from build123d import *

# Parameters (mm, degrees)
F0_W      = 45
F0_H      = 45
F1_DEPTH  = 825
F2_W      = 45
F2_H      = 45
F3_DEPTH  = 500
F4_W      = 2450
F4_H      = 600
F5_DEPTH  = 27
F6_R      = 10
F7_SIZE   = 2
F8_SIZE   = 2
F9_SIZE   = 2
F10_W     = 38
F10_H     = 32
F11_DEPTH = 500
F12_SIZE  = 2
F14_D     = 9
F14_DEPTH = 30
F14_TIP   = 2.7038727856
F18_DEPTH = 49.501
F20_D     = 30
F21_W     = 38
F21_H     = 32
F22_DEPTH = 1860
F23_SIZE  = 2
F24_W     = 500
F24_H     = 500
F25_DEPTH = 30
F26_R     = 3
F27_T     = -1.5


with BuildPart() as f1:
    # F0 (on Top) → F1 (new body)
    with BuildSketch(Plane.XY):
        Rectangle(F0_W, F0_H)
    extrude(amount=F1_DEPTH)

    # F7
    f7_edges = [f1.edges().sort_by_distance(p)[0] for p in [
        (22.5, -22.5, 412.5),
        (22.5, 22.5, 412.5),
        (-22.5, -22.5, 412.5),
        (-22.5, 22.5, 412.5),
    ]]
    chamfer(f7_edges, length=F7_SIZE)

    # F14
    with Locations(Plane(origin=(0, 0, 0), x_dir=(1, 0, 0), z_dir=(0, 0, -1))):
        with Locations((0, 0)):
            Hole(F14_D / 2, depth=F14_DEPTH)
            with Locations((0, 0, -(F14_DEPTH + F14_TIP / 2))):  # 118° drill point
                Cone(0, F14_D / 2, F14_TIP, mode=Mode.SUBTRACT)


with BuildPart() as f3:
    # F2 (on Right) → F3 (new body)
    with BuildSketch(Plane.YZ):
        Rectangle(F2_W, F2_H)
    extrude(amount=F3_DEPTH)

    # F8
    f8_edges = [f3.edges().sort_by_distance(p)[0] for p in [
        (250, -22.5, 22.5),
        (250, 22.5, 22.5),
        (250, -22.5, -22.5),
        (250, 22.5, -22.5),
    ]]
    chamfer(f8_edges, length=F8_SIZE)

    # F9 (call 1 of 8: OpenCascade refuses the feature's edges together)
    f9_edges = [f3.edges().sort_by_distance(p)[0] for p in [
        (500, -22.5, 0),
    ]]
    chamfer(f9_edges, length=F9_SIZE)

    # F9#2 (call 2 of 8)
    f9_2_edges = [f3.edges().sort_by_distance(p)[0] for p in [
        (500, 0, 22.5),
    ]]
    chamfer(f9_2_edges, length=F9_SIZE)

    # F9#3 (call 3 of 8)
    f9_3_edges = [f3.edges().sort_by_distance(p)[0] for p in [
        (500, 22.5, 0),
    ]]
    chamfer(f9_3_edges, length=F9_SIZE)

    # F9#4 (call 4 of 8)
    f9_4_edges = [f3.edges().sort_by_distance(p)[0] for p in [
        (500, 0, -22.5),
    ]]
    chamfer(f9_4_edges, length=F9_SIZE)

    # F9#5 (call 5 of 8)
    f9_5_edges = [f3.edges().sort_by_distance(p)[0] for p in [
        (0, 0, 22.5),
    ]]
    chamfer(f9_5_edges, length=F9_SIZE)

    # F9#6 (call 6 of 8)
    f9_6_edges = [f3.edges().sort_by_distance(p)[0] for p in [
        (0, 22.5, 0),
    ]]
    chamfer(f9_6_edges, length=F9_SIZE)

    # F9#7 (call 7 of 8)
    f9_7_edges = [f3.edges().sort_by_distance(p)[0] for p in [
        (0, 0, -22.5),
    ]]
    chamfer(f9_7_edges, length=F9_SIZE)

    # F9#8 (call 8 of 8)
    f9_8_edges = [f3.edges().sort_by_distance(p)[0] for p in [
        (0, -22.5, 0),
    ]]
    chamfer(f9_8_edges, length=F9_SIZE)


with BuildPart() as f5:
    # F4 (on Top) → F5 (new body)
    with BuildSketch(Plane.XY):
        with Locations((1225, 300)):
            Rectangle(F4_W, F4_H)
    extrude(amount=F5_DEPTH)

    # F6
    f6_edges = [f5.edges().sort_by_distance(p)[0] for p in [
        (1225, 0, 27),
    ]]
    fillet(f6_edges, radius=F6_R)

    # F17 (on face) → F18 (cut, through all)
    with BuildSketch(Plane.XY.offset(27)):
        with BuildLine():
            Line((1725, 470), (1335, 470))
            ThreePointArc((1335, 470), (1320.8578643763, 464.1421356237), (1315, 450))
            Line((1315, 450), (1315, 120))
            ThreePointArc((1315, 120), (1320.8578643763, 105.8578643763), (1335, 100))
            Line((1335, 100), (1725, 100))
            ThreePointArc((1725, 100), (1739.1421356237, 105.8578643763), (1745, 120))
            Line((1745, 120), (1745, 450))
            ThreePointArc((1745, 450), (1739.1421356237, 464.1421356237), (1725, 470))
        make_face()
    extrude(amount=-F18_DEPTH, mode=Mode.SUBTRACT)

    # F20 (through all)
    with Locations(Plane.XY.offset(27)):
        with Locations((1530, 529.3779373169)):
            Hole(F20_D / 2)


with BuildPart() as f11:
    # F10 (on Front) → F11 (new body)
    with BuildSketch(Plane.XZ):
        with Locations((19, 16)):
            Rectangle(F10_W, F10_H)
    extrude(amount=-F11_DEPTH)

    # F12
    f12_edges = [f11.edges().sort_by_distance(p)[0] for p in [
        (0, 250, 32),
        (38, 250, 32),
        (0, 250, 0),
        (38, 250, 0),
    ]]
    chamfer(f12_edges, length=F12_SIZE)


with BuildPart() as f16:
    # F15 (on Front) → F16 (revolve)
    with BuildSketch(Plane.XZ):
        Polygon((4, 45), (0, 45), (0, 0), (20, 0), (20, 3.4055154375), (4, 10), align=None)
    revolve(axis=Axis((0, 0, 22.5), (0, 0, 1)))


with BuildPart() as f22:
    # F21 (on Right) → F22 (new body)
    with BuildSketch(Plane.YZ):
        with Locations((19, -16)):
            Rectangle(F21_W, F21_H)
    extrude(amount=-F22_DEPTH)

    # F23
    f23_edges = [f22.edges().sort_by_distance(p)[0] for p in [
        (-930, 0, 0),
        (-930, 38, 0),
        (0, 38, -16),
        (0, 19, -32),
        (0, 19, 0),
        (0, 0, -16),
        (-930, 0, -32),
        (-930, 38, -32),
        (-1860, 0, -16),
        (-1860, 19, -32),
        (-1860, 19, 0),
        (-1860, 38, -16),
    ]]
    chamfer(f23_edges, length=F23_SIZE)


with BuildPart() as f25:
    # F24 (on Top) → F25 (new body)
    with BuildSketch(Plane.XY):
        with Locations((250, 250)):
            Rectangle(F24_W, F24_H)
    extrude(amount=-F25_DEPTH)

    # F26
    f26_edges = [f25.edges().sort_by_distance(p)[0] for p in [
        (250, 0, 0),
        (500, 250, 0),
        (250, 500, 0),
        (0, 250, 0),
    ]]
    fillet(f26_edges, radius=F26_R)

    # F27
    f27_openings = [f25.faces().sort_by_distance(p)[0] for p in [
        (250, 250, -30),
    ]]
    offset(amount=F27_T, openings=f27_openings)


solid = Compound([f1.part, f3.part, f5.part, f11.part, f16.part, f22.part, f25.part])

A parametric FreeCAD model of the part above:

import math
import FreeCAD as App
import Part
import Sketcher

V = App.Vector
Q = App.Units.Quantity


def edges_at(feature, points):
    """Names of the edges that pass closest to the given points."""
    edges = feature.Shape.Edges
    near = lambda p: min(range(len(edges)), key=lambda i: edges[i].distToShape(Part.Vertex(*p))[0])
    return sorted({f"Edge{near(p) + 1}" for p in points})


def faces_at(feature, points):
    """Names of the faces that lie closest to the given points."""
    faces = feature.Shape.Faces
    near = lambda p: min(range(len(faces)), key=lambda i: faces[i].distToShape(Part.Vertex(*p))[0])
    return sorted({f"Face{near(p) + 1}" for p in points})


def add_polygon(sketch, points):
    """Adds a closed chain of lines whose ends are joined by coincident constraints."""
    first, n = sketch.GeometryCount, len(points)
    for a, b in zip(points, points[1:] + points[:1]):
        sketch.addGeometry(Part.LineSegment(App.Vector(*a, 0), App.Vector(*b, 0)), False)
    for i in range(n):
        sketch.addConstraint(Sketcher.Constraint("Coincident", first + i, 2, first + (i + 1) % n, 1))

doc = App.newDocument("Part")
params = doc.addObject("Spreadsheet::Sheet", "Params")
for row, (alias, value) in enumerate([
    ("sketch1_width", "45 mm"),
    ("pad1_length", "825 mm"),
    ("chamfer_size", "2 mm"),
    ("sketch2_diameter", "9 mm"),
    ("hole_diameter", "9 mm"),
    ("hole_depth", "30 mm"),
    ("sketch3_width", "45 mm"),
    ("pad2_length", "500 mm"),
    ("chamfer2_size", "2 mm"),
    ("chamfer3_size", "2 mm"),
    ("chamfer4_size", "2 mm"),
    ("chamfer5_size", "2 mm"),
    ("chamfer6_size", "2 mm"),
    ("chamfer7_size", "2 mm"),
    ("chamfer8_size", "2 mm"),
    ("chamfer9_size", "2 mm"),
    ("chamfer10_size", "2 mm"),
    ("sketch4_width", "2450 mm"),
    ("sketch4_height", "600 mm"),
    ("pad3_length", "27 mm"),
    ("fillet_radius", "10 mm"),
    ("sketch5_radius", "20 mm"),
    ("sketch5_width", "390 mm"),
    ("sketch5_height", "330 mm"),
    ("sketch6_diameter", "30 mm"),
    ("hole2_diameter", "30 mm"),
    ("sketch7_width", "38 mm"),
    ("sketch7_height", "32 mm"),
    ("pad4_length", "500 mm"),
    ("chamfer11_size", "2 mm"),
    ("sketch8_width", "4 mm"),
    ("sketch8_width2", "20 mm"),
    ("sketch8_height", "45 mm"),
    ("sketch8_height2", "35 mm"),
    ("revolution_angle", "360 deg"),
    ("sketch9_width", "38 mm"),
    ("sketch9_height", "32 mm"),
    ("pad5_length", "1860 mm"),
    ("chamfer12_size", "2 mm"),
    ("sketch10_width", "500 mm"),
    ("pad6_length", "30 mm"),
    ("fillet2_radius", "3 mm"),
    ("thickness_wall", "1.5 mm"),
], start=1):
    params.set(f"A{row}", alias)
    params.set(f"B{row}", "=" + value)
    params.setAlias(f"B{row}", alias)

body = doc.addObject("PartDesign::Body", "Body")

# Sketch on XY plane
sketch1 = body.newObject("Sketcher::SketchObject", "Sketch")
sketch1.AttachmentSupport = (doc.getObject("XY_Plane"), [""])
sketch1.MapMode = "FlatFace"
add_polygon(sketch1, [(-22, 22), (-22, -22), (22, -22), (22, 22)])  # lines 0-3
sketch1.addConstraint([
    Sketcher.Constraint("Vertical", 0),
    Sketcher.Constraint("Horizontal", 1),
    Sketcher.Constraint("Vertical", 2),
    Sketcher.Constraint("Horizontal", 3),
    Sketcher.Constraint("Symmetric", 0, 2, 2, 2, -1, 1),
    Sketcher.Constraint("Equal", 3, 0),
    Sketcher.Constraint("DistanceX", 1, 1, 1, 2, Q("45 mm")),
])
sketch1.setExpression("Constraints[10]", "Params.sketch1_width")
pad1 = body.newObject("PartDesign::Pad", "Pad")
pad1.Profile = sketch1
pad1.setExpression("Length", "Params.pad1_length")
doc.recompute()

chamfer = body.newObject("PartDesign::Chamfer", "Chamfer")
chamfer.Base = (pad1, edges_at(pad1, [
    (22.5, -22.5, 412.5),
    (22.5, 22.5, 412.5),
    (-22.5, -22.5, 412.5),
    (-22.5, 22.5, 412.5),
]))
chamfer.setExpression("Size", "Params.chamfer_size")

# Sketch on XY plane
sketch2 = body.newObject("Sketcher::SketchObject", "Sketch001")
sketch2.AttachmentSupport = (doc.getObject("XY_Plane"), [""])
sketch2.MapMode = "FlatFace"
sketch2.addGeometry(Part.Circle(V(0, 0, 0), V(0, 0, 1), 4.5), False)
sketch2.addConstraint([
    Sketcher.Constraint("Coincident", 0, 3, -1, 1),
    Sketcher.Constraint("Diameter", 0, Q("9 mm")),
])
sketch2.setExpression("Constraints[1]", "Params.sketch2_diameter")
doc.recompute()
hole = body.newObject("PartDesign::Hole", "Hole")
hole.Profile = sketch2
hole.ThreadType = "None"
hole.setExpression("Diameter", "Params.hole_diameter")
hole.DepthType = "Dimension"
hole.setExpression("Depth", "Params.hole_depth")
hole.DrillPoint = "Angled"
hole.DrillPointAngle = 118
hole.Reversed = True
body2 = doc.addObject("PartDesign::Body", "Body001")

# Sketch on YZ plane
sketch3 = body2.newObject("Sketcher::SketchObject", "Sketch002")
sketch3.AttachmentSupport = (doc.getObject("YZ_Plane001"), [""])
sketch3.MapMode = "FlatFace"
add_polygon(sketch3, [(-22, 22), (-22, -22), (22, -22), (22, 22)])  # lines 0-3
sketch3.addConstraint([
    Sketcher.Constraint("Vertical", 0),
    Sketcher.Constraint("Horizontal", 1),
    Sketcher.Constraint("Vertical", 2),
    Sketcher.Constraint("Horizontal", 3),
    Sketcher.Constraint("Symmetric", 0, 2, 2, 2, -1, 1),
    Sketcher.Constraint("Equal", 3, 0),
    Sketcher.Constraint("DistanceX", 1, 1, 1, 2, Q("45 mm")),
])
sketch3.setExpression("Constraints[10]", "Params.sketch3_width")
pad2 = body2.newObject("PartDesign::Pad", "Pad001")
pad2.Profile = sketch3
pad2.setExpression("Length", "Params.pad2_length")
doc.recompute()

chamfer2 = body2.newObject("PartDesign::Chamfer", "Chamfer001")
chamfer2.Base = (pad2, edges_at(pad2, [
    (250, -22.5, 22.5),
    (250, 22.5, 22.5),
    (250, -22.5, -22.5),
    (250, 22.5, -22.5),
]))
chamfer2.setExpression("Size", "Params.chamfer2_size")
doc.recompute()

chamfer3 = body2.newObject("PartDesign::Chamfer", "Chamfer002")
chamfer3.Base = (chamfer2, edges_at(chamfer2, [(500, -22.5, 0)]))
chamfer3.setExpression("Size", "Params.chamfer3_size")
doc.recompute()

chamfer4 = body2.newObject("PartDesign::Chamfer", "Chamfer003")
chamfer4.Base = (chamfer3, edges_at(chamfer3, [(500, 0, 22.5)]))
chamfer4.setExpression("Size", "Params.chamfer4_size")
doc.recompute()

chamfer5 = body2.newObject("PartDesign::Chamfer", "Chamfer004")
chamfer5.Base = (chamfer4, edges_at(chamfer4, [(500, 22.5, 0)]))
chamfer5.setExpression("Size", "Params.chamfer5_size")
doc.recompute()

chamfer6 = body2.newObject("PartDesign::Chamfer", "Chamfer005")
chamfer6.Base = (chamfer5, edges_at(chamfer5, [(500, 0, -22.5)]))
chamfer6.setExpression("Size", "Params.chamfer6_size")
doc.recompute()

chamfer7 = body2.newObject("PartDesign::Chamfer", "Chamfer006")
chamfer7.Base = (chamfer6, edges_at(chamfer6, [(0, 0, 22.5)]))
chamfer7.setExpression("Size", "Params.chamfer7_size")
doc.recompute()

chamfer8 = body2.newObject("PartDesign::Chamfer", "Chamfer007")
chamfer8.Base = (chamfer7, edges_at(chamfer7, [(0, 22.5, 0)]))
chamfer8.setExpression("Size", "Params.chamfer8_size")
doc.recompute()

chamfer9 = body2.newObject("PartDesign::Chamfer", "Chamfer008")
chamfer9.Base = (chamfer8, edges_at(chamfer8, [(0, 0, -22.5)]))
chamfer9.setExpression("Size", "Params.chamfer9_size")
doc.recompute()

chamfer10 = body2.newObject("PartDesign::Chamfer", "Chamfer009")
chamfer10.Base = (chamfer9, edges_at(chamfer9, [(0, -22.5, 0)]))
chamfer10.setExpression("Size", "Params.chamfer10_size")
body3 = doc.addObject("PartDesign::Body", "Body002")

# Sketch on XY plane
sketch4 = body3.newObject("Sketcher::SketchObject", "Sketch003")
sketch4.AttachmentSupport = (doc.getObject("XY_Plane002"), [""])
sketch4.MapMode = "FlatFace"
add_polygon(sketch4, [(0, 600), (0, 0), (2450, 0), (2450, 600)])  # lines 0-3
sketch4.addConstraint([
    Sketcher.Constraint("Vertical", 0),
    Sketcher.Constraint("Horizontal", 1),
    Sketcher.Constraint("Vertical", 2),
    Sketcher.Constraint("Horizontal", 3),
    Sketcher.Constraint("Coincident", 0, 2, -1, 1),
    Sketcher.Constraint("DistanceX", 1, 1, 1, 2, Q("2450 mm")),
    Sketcher.Constraint("DistanceY", 0, 2, 0, 1, Q("600 mm")),
])
sketch4.setExpression("Constraints[9]", "Params.sketch4_width")
sketch4.setExpression("Constraints[10]", "Params.sketch4_height")
pad3 = body3.newObject("PartDesign::Pad", "Pad002")
pad3.Profile = sketch4
pad3.setExpression("Length", "Params.pad3_length")
doc.recompute()

fillet = body3.newObject("PartDesign::Fillet", "Fillet")
fillet.Base = (pad3, edges_at(pad3, [(1225, 0, 27)]))
fillet.setExpression("Radius", "Params.fillet_radius")

# Sketch on XY plane
sketch5 = body3.newObject("Sketcher::SketchObject", "Sketch004")
sketch5.AttachmentSupport = (doc.getObject("XY_Plane002"), [""])
sketch5.MapMode = "FlatFace"
sketch5.AttachmentOffset = App.Placement(V(0, 0, 27), App.Rotation())
sketch5.addGeometry([
    Part.LineSegment(V(1725, 470, 0), V(1335, 470, 0)),  # 0
    Part.ArcOfCircle(Part.Circle(V(1335, 450, 0), V(0, 0, 1), 20), math.radians(90), math.radians(180)),  # 1
    Part.LineSegment(V(1315, 450, 0), V(1315, 120, 0)),  # 2
    Part.ArcOfCircle(Part.Circle(V(1335, 120, 0), V(0, 0, 1), 20), math.radians(180), math.radians(270)),  # 3
    Part.LineSegment(V(1335, 100, 0), V(1725, 100, 0)),  # 4
    Part.ArcOfCircle(Part.Circle(V(1725, 120, 0), V(0, 0, 1), 20), math.radians(-90), math.radians(0)),  # 5
    Part.LineSegment(V(1745, 120, 0), V(1745, 450, 0)),  # 6
    Part.ArcOfCircle(Part.Circle(V(1725, 450, 0), V(0, 0, 1), 20), math.radians(0), math.radians(90)),  # 7
], False)
sketch5.addConstraint([
    Sketcher.Constraint("Tangent", 0, 2, 1, 1),
    Sketcher.Constraint("Tangent", 1, 2, 2, 1),
    Sketcher.Constraint("Tangent", 2, 2, 3, 1),
    Sketcher.Constraint("Tangent", 3, 2, 4, 1),
    Sketcher.Constraint("Tangent", 4, 2, 5, 1),
    Sketcher.Constraint("Tangent", 5, 2, 6, 1),
    Sketcher.Constraint("Tangent", 6, 2, 7, 1),
    Sketcher.Constraint("Tangent", 7, 2, 0, 1),
    Sketcher.Constraint("Horizontal", 0),
    Sketcher.Constraint("Vertical", 2),
    Sketcher.Constraint("Horizontal", 4),
    Sketcher.Constraint("Vertical", 6),
    Sketcher.Constraint("Equal", 1, 3),
    Sketcher.Constraint("Equal", 3, 5),
    Sketcher.Constraint("Equal", 5, 7),
    Sketcher.Constraint("Radius", 1, Q("20 mm")),
    Sketcher.Constraint("DistanceX", 0, 2, 0, 1, Q("390 mm")),
    Sketcher.Constraint("DistanceY", 2, 2, 2, 1, Q("330 mm")),
    Sketcher.Constraint("DistanceX", -1, 1, 1, 3, Q("1335 mm")),
    Sketcher.Constraint("DistanceY", -1, 1, 1, 3, Q("450 mm")),
])
sketch5.setExpression("Constraints[15]", "Params.sketch5_radius")
sketch5.setExpression("Constraints[16]", "Params.sketch5_width")
sketch5.setExpression("Constraints[17]", "Params.sketch5_height")
pocket1 = body3.newObject("PartDesign::Pocket", "Pocket")
pocket1.Profile = sketch5
pocket1.Type = "ThroughAll"

# Sketch on XY plane
sketch6 = body3.newObject("Sketcher::SketchObject", "Sketch005")
sketch6.AttachmentSupport = (doc.getObject("XY_Plane002"), [""])
sketch6.MapMode = "FlatFace"
sketch6.AttachmentOffset = App.Placement(V(0, 0, 27), App.Rotation())
sketch6.addGeometry(Part.Circle(V(1530, 529, 0), V(0, 0, 1), 15), False)
sketch6.addConstraint([
    Sketcher.Constraint("Diameter", 0, Q("30 mm")),
    Sketcher.Constraint("DistanceX", -1, 1, 0, 3, Q("1530 mm")),
    Sketcher.Constraint("DistanceY", -1, 1, 0, 3, Q("529.377937 mm")),
])
sketch6.setExpression("Constraints[0]", "Params.sketch6_diameter")
doc.recompute()
hole2 = body3.newObject("PartDesign::Hole", "Hole001")
hole2.Profile = sketch6
hole2.ThreadType = "None"
hole2.setExpression("Diameter", "Params.hole2_diameter")
hole2.DepthType = "ThroughAll"
body4 = doc.addObject("PartDesign::Body", "Body003")

# Sketch on XZ plane
sketch7 = body4.newObject("Sketcher::SketchObject", "Sketch006")
sketch7.AttachmentSupport = (doc.getObject("XZ_Plane003"), [""])
sketch7.MapMode = "FlatFace"
add_polygon(sketch7, [(0, 32), (0, 0), (38, 0), (38, 32)])  # lines 0-3
sketch7.addConstraint([
    Sketcher.Constraint("Vertical", 0),
    Sketcher.Constraint("Horizontal", 1),
    Sketcher.Constraint("Vertical", 2),
    Sketcher.Constraint("Horizontal", 3),
    Sketcher.Constraint("Coincident", 0, 2, -1, 1),
    Sketcher.Constraint("DistanceX", 1, 1, 1, 2, Q("38 mm")),
    Sketcher.Constraint("DistanceY", 0, 2, 0, 1, Q("32 mm")),
])
sketch7.setExpression("Constraints[9]", "Params.sketch7_width")
sketch7.setExpression("Constraints[10]", "Params.sketch7_height")
pad4 = body4.newObject("PartDesign::Pad", "Pad003")
pad4.Profile = sketch7
pad4.setExpression("Length", "Params.pad4_length")
pad4.Reversed = True
doc.recompute()

chamfer11 = body4.newObject("PartDesign::Chamfer", "Chamfer010")
chamfer11.Base = (pad4, edges_at(pad4, [
    (0, 250, 32),
    (38, 250, 32),
    (0, 250, 0),
    (38, 250, 0),
]))
chamfer11.setExpression("Size", "Params.chamfer11_size")
body5 = doc.addObject("PartDesign::Body", "Body004")

# Sketch on XZ plane
sketch8 = body5.newObject("Sketcher::SketchObject", "Sketch007")
sketch8.AttachmentSupport = (doc.getObject("XZ_Plane004"), [""])
sketch8.MapMode = "FlatFace"
add_polygon(sketch8, [(4, 45), (0, 45), (0, 0), (20, 0), (20, 3.4), (4, 10)])  # lines 0-5
sketch8.addConstraint([
    Sketcher.Constraint("Horizontal", 0),
    Sketcher.Constraint("Vertical", 1),
    Sketcher.Constraint("Horizontal", 2),
    Sketcher.Constraint("Vertical", 3),
    Sketcher.Constraint("Vertical", 5),
    Sketcher.Constraint("Coincident", 1, 2, -1, 1),
    Sketcher.Constraint("DistanceX", 0, 2, 0, 1, Q("4 mm")),
    Sketcher.Constraint("DistanceX", 2, 1, 2, 2, Q("20 mm")),
    Sketcher.Constraint("DistanceY", 1, 2, 1, 1, Q("45 mm")),
    Sketcher.Constraint("DistanceY", 5, 1, 5, 2, Q("35 mm")),
    Sketcher.Constraint("Distance", 4, Q("17.305699 mm")),
])
sketch8.setExpression("Constraints[12]", "Params.sketch8_width")
sketch8.setExpression("Constraints[13]", "Params.sketch8_width2")
sketch8.setExpression("Constraints[14]", "Params.sketch8_height")
sketch8.setExpression("Constraints[15]", "Params.sketch8_height2")
revolution = body5.newObject("PartDesign::Revolution", "Revolution")
revolution.Profile = sketch8
revolution.ReferenceAxis = (sketch8, ["V_Axis"])
revolution.setExpression("Angle", "Params.revolution_angle")
body6 = doc.addObject("PartDesign::Body", "Body005")

# Sketch on YZ plane
sketch9 = body6.newObject("Sketcher::SketchObject", "Sketch008")
sketch9.AttachmentSupport = (doc.getObject("YZ_Plane005"), [""])
sketch9.MapMode = "FlatFace"
add_polygon(sketch9, [(0, 0), (0, -32), (38, -32), (38, 0)])  # lines 0-3
sketch9.addConstraint([
    Sketcher.Constraint("Vertical", 0),
    Sketcher.Constraint("Horizontal", 1),
    Sketcher.Constraint("Vertical", 2),
    Sketcher.Constraint("Horizontal", 3),
    Sketcher.Constraint("Coincident", 3, 2, -1, 1),
    Sketcher.Constraint("DistanceX", 1, 1, 1, 2, Q("38 mm")),
    Sketcher.Constraint("DistanceY", 0, 2, 0, 1, Q("32 mm")),
])
sketch9.setExpression("Constraints[9]", "Params.sketch9_width")
sketch9.setExpression("Constraints[10]", "Params.sketch9_height")
pad5 = body6.newObject("PartDesign::Pad", "Pad004")
pad5.Profile = sketch9
pad5.setExpression("Length", "Params.pad5_length")
pad5.Reversed = True
doc.recompute()

chamfer12 = body6.newObject("PartDesign::Chamfer", "Chamfer011")
chamfer12.Base = (pad5, ["Edge1"])
chamfer12.UseAllEdges = True
chamfer12.setExpression("Size", "Params.chamfer12_size")
body7 = doc.addObject("PartDesign::Body", "Body006")

# Sketch on XY plane
sketch10 = body7.newObject("Sketcher::SketchObject", "Sketch009")
sketch10.AttachmentSupport = (doc.getObject("XY_Plane006"), [""])
sketch10.MapMode = "FlatFace"
add_polygon(sketch10, [(0, 500), (0, 0), (500, 0), (500, 500)])  # lines 0-3
sketch10.addConstraint([
    Sketcher.Constraint("Vertical", 0),
    Sketcher.Constraint("Horizontal", 1),
    Sketcher.Constraint("Vertical", 2),
    Sketcher.Constraint("Horizontal", 3),
    Sketcher.Constraint("Coincident", 0, 2, -1, 1),
    Sketcher.Constraint("Equal", 3, 0),
    Sketcher.Constraint("DistanceX", 1, 1, 1, 2, Q("500 mm")),
])
sketch10.setExpression("Constraints[10]", "Params.sketch10_width")
pad6 = body7.newObject("PartDesign::Pad", "Pad005")
pad6.Profile = sketch10
pad6.setExpression("Length", "Params.pad6_length")
pad6.Reversed = True
doc.recompute()

fillet2 = body7.newObject("PartDesign::Fillet", "Fillet001")
fillet2.Base = (pad6, edges_at(pad6, [
    (250, 0, 0),
    (500, 250, 0),
    (250, 500, 0),
    (0, 250, 0),
]))
fillet2.setExpression("Radius", "Params.fillet2_radius")
doc.recompute()

thickness = body7.newObject("PartDesign::Thickness", "Thickness")
thickness.Base = (fillet2, faces_at(fillet2, [(250, 250, -30)]))
thickness.setExpression("Value", "Params.thickness_wall")
thickness.Reversed = True
thickness.Join = "Arc"

doc.recompute()
